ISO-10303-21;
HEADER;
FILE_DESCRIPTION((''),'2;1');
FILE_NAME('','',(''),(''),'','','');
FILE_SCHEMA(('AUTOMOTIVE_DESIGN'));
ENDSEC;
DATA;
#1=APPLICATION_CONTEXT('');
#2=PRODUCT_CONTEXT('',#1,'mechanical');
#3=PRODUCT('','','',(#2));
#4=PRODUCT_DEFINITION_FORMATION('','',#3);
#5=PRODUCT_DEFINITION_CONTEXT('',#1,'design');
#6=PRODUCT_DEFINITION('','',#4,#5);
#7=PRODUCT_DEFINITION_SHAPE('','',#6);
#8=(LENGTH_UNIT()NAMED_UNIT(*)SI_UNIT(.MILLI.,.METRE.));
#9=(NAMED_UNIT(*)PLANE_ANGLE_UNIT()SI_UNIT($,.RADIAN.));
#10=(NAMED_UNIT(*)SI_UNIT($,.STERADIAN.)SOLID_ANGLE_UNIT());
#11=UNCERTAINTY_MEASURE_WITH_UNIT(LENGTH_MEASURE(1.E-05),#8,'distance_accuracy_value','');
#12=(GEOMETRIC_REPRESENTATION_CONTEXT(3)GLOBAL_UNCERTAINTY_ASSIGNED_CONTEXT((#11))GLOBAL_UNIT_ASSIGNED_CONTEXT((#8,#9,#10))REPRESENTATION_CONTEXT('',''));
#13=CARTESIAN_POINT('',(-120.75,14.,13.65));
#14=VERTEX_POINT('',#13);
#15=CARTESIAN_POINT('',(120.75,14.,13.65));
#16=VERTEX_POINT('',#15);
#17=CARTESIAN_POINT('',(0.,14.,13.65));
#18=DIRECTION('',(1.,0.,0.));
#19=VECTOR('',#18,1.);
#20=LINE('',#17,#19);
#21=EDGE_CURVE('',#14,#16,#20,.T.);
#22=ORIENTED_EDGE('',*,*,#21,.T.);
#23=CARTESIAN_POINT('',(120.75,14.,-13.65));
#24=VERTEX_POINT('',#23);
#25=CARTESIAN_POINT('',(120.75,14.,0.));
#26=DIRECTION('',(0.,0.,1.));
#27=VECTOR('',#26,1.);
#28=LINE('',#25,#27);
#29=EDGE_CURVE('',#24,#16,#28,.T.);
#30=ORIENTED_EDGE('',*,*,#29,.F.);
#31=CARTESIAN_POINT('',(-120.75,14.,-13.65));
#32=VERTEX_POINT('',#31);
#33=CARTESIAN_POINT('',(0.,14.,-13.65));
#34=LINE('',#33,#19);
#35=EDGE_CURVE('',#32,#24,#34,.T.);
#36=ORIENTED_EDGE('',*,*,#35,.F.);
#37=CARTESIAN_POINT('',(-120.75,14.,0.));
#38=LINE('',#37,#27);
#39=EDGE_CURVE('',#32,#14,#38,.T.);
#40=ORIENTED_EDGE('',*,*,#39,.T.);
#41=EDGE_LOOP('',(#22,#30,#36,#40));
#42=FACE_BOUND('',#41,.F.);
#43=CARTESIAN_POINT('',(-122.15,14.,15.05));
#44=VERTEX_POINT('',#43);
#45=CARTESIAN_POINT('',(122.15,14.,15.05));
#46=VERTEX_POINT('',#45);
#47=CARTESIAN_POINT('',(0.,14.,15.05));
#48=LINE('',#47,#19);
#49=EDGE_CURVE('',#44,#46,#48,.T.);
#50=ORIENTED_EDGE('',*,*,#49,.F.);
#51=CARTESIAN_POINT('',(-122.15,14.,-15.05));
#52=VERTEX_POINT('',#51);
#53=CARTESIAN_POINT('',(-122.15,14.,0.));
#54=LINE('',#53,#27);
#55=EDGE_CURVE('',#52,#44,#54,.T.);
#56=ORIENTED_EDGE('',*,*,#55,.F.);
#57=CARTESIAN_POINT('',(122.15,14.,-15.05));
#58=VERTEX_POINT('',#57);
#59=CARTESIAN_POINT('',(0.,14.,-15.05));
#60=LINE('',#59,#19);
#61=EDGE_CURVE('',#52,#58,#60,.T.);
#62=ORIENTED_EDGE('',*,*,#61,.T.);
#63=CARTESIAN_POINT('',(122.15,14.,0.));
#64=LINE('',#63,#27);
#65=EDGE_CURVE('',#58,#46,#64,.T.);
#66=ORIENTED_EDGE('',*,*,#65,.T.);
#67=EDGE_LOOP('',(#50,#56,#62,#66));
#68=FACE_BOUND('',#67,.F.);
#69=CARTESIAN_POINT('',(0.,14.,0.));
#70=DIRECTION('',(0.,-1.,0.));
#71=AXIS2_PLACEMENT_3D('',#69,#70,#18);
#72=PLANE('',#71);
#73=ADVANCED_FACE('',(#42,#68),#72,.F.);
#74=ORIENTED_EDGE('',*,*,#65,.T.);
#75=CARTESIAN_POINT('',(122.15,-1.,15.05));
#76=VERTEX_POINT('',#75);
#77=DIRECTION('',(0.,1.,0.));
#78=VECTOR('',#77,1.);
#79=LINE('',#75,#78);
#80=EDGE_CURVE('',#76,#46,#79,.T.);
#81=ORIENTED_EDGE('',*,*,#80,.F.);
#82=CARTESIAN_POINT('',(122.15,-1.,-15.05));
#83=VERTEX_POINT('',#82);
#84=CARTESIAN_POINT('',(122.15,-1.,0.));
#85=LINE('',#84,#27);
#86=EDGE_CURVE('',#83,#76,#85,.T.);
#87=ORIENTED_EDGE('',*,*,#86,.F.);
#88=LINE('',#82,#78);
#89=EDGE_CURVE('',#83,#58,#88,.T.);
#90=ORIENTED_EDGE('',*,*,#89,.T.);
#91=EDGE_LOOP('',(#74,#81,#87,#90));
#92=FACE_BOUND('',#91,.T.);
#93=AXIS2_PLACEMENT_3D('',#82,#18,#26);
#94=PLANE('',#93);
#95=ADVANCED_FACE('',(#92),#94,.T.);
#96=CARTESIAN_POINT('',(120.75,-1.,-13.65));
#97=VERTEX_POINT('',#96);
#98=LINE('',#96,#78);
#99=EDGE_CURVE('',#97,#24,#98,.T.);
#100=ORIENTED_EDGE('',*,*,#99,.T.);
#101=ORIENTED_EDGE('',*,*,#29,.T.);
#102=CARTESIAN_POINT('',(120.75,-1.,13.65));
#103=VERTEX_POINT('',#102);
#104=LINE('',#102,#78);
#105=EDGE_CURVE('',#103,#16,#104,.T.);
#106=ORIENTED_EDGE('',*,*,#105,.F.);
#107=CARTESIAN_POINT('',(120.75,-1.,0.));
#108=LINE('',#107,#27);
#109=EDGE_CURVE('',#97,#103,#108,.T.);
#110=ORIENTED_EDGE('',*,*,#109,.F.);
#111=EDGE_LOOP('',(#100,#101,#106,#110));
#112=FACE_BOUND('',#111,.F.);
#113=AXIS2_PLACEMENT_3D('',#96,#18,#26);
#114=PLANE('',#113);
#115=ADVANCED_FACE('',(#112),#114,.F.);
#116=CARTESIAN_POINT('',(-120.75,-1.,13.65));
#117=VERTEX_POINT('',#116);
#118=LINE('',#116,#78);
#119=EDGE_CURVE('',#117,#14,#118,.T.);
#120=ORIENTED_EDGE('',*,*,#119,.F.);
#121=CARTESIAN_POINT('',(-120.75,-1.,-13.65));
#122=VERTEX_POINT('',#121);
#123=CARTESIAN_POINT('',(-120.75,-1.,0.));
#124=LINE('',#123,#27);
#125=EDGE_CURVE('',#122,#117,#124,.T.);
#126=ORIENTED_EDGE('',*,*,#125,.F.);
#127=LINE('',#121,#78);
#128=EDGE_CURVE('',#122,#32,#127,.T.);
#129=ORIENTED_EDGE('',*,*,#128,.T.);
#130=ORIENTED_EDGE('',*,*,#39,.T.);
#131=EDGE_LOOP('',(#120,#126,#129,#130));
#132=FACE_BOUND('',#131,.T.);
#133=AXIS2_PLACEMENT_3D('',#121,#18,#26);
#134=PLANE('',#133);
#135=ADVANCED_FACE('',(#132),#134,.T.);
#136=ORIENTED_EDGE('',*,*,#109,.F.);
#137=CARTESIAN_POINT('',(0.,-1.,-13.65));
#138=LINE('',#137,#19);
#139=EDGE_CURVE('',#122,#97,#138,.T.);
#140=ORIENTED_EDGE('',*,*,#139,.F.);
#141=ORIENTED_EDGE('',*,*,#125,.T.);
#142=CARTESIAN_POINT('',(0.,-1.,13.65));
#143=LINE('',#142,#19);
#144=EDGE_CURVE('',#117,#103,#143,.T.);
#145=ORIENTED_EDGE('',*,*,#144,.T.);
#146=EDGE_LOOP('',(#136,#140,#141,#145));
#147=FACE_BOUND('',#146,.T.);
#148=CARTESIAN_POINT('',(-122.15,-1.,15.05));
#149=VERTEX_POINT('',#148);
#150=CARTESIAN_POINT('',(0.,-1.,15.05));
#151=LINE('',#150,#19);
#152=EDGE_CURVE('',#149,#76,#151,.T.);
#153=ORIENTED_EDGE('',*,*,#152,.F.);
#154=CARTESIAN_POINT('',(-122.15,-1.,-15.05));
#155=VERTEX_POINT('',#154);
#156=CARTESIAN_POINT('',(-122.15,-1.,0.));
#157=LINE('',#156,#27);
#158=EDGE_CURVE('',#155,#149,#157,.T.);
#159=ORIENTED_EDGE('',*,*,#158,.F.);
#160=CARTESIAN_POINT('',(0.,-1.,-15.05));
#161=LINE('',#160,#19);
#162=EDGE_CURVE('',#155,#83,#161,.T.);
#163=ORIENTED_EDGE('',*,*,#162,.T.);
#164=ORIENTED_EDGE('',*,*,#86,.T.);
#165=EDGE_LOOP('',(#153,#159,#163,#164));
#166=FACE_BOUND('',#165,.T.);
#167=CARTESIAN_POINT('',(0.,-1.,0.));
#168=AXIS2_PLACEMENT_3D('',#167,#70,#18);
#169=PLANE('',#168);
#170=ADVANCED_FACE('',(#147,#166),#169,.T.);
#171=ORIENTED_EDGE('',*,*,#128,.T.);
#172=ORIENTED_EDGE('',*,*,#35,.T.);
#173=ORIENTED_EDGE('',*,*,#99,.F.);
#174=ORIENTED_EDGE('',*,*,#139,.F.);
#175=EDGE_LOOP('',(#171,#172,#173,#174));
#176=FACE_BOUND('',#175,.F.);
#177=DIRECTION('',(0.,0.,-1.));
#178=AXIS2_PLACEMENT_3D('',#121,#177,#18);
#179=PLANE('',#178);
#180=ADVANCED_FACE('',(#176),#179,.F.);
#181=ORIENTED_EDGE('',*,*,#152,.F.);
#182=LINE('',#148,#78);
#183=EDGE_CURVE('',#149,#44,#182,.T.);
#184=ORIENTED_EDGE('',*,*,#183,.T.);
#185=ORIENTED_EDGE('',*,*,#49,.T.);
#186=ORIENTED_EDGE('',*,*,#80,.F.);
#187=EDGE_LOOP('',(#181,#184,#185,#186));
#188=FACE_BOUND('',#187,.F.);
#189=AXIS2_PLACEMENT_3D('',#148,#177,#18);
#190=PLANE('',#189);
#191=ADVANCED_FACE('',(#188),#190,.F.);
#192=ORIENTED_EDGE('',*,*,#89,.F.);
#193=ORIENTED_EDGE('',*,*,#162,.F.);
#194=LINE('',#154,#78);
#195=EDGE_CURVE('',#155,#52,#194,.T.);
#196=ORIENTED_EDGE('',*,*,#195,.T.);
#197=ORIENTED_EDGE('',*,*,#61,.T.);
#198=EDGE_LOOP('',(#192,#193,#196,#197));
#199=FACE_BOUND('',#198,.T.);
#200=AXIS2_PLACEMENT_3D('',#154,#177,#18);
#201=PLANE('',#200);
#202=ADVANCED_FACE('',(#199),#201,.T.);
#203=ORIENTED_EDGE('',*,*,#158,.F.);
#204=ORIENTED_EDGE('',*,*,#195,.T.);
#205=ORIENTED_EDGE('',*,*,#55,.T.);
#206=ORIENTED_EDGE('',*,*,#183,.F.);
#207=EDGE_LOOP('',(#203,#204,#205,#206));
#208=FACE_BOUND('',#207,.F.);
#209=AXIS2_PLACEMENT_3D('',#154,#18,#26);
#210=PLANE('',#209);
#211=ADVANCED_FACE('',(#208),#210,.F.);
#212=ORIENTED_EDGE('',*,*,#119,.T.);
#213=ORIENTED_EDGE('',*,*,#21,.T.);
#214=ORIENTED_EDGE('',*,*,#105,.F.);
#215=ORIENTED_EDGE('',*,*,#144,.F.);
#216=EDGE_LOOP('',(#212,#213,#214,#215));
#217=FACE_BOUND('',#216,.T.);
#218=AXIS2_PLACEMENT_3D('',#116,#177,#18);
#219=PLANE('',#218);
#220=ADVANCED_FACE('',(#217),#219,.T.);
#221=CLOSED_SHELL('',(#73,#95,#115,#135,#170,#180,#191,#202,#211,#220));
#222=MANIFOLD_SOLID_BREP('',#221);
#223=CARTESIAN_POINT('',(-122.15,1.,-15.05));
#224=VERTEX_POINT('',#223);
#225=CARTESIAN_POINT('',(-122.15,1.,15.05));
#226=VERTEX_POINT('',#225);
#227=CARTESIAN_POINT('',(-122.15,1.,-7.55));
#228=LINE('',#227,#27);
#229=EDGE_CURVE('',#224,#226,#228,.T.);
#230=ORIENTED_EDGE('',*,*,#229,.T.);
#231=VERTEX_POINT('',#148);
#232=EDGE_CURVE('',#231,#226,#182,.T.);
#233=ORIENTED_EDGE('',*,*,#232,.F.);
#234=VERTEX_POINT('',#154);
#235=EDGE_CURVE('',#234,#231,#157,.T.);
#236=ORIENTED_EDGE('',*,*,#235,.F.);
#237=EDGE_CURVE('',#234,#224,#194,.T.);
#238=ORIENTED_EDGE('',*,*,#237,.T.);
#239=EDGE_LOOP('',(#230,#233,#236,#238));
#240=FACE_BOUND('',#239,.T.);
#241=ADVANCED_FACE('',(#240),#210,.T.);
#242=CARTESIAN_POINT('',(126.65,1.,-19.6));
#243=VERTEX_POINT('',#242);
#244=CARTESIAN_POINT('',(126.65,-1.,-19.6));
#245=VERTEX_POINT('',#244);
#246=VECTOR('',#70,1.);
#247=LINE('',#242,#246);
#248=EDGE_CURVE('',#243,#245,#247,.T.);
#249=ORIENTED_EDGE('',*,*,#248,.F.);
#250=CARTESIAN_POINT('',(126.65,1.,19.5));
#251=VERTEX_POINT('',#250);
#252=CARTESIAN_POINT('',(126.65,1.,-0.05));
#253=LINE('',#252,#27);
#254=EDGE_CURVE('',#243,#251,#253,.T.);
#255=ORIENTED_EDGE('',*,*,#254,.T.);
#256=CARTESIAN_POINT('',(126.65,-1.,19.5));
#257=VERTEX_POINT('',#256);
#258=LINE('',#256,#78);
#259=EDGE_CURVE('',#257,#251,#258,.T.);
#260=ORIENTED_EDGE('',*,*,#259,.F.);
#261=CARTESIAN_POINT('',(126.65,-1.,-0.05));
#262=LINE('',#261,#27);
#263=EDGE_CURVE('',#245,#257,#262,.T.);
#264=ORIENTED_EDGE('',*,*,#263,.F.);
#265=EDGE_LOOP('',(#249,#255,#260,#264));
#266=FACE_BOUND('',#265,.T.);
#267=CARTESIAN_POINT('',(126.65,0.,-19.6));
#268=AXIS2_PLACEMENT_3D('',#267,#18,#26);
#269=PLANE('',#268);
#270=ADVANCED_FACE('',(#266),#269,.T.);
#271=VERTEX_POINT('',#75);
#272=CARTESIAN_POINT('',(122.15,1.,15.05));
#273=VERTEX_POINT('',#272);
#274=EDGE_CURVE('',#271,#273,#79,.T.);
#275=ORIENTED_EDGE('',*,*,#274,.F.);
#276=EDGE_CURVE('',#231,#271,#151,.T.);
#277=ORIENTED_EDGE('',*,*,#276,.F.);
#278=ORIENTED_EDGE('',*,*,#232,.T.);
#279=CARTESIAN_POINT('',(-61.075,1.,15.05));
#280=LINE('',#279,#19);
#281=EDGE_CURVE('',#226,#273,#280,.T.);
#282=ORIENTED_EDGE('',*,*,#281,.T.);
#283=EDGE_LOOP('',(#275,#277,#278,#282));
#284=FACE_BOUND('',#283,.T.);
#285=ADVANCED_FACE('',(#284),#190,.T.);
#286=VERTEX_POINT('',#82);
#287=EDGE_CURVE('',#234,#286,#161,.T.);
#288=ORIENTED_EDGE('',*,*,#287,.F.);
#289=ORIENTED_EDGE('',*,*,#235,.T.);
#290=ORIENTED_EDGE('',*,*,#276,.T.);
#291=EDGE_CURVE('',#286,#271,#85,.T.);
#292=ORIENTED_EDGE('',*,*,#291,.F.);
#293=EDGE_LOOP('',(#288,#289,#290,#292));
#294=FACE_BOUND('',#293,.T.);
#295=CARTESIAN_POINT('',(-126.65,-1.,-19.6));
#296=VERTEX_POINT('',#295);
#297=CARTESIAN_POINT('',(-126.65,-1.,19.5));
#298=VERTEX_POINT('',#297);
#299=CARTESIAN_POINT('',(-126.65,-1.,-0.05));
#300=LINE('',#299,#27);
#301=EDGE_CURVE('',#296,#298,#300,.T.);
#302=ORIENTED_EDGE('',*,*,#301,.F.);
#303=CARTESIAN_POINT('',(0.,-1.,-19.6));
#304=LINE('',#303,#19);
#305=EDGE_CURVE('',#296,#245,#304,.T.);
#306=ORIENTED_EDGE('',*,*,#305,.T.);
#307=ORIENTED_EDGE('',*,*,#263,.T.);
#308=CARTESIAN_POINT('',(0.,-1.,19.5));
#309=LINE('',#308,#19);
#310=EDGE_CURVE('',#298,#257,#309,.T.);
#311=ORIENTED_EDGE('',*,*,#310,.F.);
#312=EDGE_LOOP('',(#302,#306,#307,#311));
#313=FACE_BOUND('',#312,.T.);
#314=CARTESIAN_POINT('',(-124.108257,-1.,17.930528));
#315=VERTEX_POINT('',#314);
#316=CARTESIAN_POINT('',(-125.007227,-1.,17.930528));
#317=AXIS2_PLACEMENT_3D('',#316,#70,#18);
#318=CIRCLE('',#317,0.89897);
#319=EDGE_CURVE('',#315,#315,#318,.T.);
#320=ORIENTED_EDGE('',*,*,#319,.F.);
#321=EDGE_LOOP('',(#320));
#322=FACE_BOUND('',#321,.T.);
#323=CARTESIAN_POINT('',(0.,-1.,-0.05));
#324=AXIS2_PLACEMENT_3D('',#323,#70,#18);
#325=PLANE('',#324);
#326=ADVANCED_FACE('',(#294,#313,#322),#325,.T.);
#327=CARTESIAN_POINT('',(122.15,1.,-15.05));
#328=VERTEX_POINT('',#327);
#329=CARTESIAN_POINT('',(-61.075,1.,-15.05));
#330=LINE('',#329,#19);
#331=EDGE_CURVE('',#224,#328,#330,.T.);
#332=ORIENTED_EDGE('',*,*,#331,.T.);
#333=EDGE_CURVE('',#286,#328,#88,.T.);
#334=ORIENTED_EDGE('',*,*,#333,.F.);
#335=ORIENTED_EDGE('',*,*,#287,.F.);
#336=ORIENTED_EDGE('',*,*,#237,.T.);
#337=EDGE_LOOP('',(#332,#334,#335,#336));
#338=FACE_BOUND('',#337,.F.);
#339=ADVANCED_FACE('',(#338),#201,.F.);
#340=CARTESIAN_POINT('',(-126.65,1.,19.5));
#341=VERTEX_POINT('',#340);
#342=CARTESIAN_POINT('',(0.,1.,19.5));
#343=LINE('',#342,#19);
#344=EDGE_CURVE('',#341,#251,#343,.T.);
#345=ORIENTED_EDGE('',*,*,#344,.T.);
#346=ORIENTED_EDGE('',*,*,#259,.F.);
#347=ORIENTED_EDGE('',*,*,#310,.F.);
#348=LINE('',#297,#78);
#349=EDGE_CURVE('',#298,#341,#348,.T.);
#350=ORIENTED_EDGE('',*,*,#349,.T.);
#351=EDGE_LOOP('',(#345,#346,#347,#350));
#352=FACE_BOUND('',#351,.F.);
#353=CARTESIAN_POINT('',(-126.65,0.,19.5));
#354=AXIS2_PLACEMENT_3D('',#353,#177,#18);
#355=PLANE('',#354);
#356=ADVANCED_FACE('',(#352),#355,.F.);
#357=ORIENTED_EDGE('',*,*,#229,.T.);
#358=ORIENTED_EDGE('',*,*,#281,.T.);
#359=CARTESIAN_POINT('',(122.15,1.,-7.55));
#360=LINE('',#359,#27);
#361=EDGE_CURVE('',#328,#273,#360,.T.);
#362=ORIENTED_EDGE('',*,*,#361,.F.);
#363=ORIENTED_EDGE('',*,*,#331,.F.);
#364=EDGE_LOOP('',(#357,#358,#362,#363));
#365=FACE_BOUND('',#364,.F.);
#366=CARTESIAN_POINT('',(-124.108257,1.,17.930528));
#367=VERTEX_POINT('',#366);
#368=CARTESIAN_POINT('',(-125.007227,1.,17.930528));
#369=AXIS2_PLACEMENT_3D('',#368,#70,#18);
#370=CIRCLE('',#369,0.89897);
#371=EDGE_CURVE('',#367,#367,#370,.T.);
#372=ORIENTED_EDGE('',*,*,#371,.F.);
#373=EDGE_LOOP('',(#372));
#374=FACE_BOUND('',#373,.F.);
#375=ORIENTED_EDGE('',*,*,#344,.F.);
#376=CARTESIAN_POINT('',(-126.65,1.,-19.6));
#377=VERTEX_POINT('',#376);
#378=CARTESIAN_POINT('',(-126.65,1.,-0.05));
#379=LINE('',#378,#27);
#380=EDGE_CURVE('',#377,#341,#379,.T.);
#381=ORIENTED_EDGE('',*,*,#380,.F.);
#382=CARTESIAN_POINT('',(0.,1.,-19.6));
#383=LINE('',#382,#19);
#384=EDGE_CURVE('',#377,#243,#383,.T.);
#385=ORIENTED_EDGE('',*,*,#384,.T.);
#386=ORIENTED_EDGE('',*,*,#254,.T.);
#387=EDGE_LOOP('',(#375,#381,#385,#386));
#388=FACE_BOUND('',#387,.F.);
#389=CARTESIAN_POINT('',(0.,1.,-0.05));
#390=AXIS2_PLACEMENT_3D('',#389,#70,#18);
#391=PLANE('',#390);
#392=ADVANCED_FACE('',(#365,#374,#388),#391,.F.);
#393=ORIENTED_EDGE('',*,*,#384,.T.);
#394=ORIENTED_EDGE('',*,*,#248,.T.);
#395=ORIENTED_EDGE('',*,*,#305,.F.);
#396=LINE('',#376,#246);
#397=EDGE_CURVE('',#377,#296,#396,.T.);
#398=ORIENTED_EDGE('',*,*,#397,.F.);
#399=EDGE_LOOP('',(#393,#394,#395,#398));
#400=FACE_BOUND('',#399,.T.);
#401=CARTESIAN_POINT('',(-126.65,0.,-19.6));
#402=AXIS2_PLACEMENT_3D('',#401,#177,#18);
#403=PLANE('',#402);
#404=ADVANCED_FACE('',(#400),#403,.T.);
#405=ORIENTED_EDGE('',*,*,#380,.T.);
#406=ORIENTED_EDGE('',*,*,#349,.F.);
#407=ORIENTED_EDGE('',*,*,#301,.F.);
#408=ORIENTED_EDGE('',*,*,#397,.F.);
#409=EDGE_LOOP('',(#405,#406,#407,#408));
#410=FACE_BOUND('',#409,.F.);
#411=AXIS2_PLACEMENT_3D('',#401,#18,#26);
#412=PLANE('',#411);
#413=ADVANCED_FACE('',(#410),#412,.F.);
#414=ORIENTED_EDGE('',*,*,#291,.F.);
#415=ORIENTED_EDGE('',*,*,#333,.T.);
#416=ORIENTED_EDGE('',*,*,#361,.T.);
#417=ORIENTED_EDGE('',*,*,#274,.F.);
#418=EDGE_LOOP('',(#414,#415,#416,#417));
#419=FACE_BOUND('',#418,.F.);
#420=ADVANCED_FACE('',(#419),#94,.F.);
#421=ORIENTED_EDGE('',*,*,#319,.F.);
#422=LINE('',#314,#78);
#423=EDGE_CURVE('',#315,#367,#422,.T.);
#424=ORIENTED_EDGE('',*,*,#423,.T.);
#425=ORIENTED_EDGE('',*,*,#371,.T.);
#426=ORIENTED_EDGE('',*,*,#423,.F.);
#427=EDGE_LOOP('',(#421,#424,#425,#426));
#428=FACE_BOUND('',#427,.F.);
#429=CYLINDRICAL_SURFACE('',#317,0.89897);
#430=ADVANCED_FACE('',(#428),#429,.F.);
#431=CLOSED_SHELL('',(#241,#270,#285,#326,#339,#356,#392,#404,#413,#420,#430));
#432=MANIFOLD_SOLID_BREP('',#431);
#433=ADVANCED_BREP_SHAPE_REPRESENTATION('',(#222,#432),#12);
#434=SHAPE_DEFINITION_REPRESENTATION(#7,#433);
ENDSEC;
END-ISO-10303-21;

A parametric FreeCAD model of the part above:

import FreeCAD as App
import Part
import Sketcher
from FreeCAD import Vector
Q = App.Units.Quantity


def add_polygon(sketch, points):
    """Adds a closed chain of lines whose ends are joined by coincident constraints."""
    first, n = sketch.GeometryCount, len(points)
    for a, b in zip(points, points[1:] + points[:1]):
        sketch.addGeometry(Part.LineSegment(App.Vector(*a, 0), App.Vector(*b, 0)), False)
    for i in range(n):
        sketch.addConstraint(Sketcher.Constraint("Coincident", first + i, 2, first + (i + 1) % n, 1))

doc = App.newDocument("Part")
body = doc.addObject("PartDesign::Body", "Body")

# Sketch on XZ plane
sketch1 = body.newObject("Sketcher::SketchObject", "Sketch")
sketch1.AttachmentSupport = (doc.getObject("XZ_Plane"), [""])
sketch1.MapMode = "FlatFace"
add_polygon(sketch1, [(-127, 20), (-127, -20), (127, -20), (127, 20)])  # lines 0-3
sketch1.addConstraint([
    Sketcher.Constraint("Vertical", 0),
    Sketcher.Constraint("Horizontal", 1),
    Sketcher.Constraint("Vertical", 2),
    Sketcher.Constraint("Horizontal", 3),
    Sketcher.Constraint("DistanceX", 1, 1, 1, 2, Q("253.3 mm")),
    Sketcher.Constraint("DistanceY", 0, 2, 0, 1, Q("39.1 mm")),
    Sketcher.Constraint("DistanceY", 0, 2, -1, 1, Q("19.6 mm")),
    Sketcher.Constraint("DistanceX", 0, 2, -1, 1, Q("126.65 mm")),
])
pad1 = body.newObject("PartDesign::Pad", "Pad")
pad1.Profile = sketch1
pad1.Length = 2
pad1.Midplane = True

# Sketch on XZ plane
sketch2 = body.newObject("Sketcher::SketchObject", "Sketch001")
sketch2.AttachmentSupport = (doc.getObject("XZ_Plane"), [""])
sketch2.MapMode = "FlatFace"
sketch2.AttachmentOffset = App.Placement(Vector(0, 0, 1), App.Rotation())
add_polygon(sketch2, [(-122, 15), (-122, -15), (122, -15), (122, 15)])  # lines 0-3
sketch2.addConstraint([
    Sketcher.Constraint("Vertical", 0),
    Sketcher.Constraint("Horizontal", 1),
    Sketcher.Constraint("Vertical", 2),
    Sketcher.Constraint("Horizontal", 3),
    Sketcher.Constraint("Symmetric", 0, 2, 2, 2, -1, 1),
    Sketcher.Constraint("DistanceX", 1, 1, 1, 2, Q("244.3 mm")),
    Sketcher.Constraint("DistanceY", 0, 2, 0, 1, Q("30.1 mm")),
])
pocket1 = body.newObject("PartDesign::Pocket", "Pocket")
pocket1.Profile = sketch2
pocket1.Type = "ThroughAll"

# Sketch on XZ plane
sketch3 = body.newObject("Sketcher::SketchObject", "Sketch002")
sketch3.AttachmentSupport = (doc.getObject("XZ_Plane"), [""])
sketch3.MapMode = "FlatFace"
sketch3.AttachmentOffset = App.Placement(Vector(0, 0, 1), App.Rotation())
sketch3.addGeometry(Part.Circle(Vector(-125, 17.9, 0), Vector(0, 0, 1), 0.9), False)
sketch3.addConstraint([
    Sketcher.Constraint("Diameter", 0, Q("1.79794 mm")),
    Sketcher.Constraint("DistanceX", 0, 3, -1, 1, Q("125.007227 mm")),
    Sketcher.Constraint("DistanceY", -1, 1, 0, 3, Q("17.930528 mm")),
])
pocket2 = body.newObject("PartDesign::Pocket", "Pocket001")
pocket2.Profile = sketch3
pocket2.Length = 50
body2 = doc.addObject("PartDesign::Body", "Body001")

# Sketch on XZ plane
sketch4 = body2.newObject("Sketcher::SketchObject", "Sketch003")
sketch4.AttachmentSupport = (doc.getObject("XZ_Plane001"), [""])
sketch4.MapMode = "FlatFace"
sketch4.AttachmentOffset = App.Placement(Vector(0, 0, 1), App.Rotation())
add_polygon(sketch4, [(-122, 15), (-122, -15), (122, -15), (122, 15)])  # lines 0-3
add_polygon(sketch4, [(121, -14), (-121, -14), (-121, 14), (121, 14)])  # lines 4-7
sketch4.addConstraint([
    Sketcher.Constraint("Vertical", 0),
    Sketcher.Constraint("Horizontal", 1),
    Sketcher.Constraint("Vertical", 2),
    Sketcher.Constraint("Horizontal", 3),
    Sketcher.Constraint("Horizontal", 4),
    Sketcher.Constraint("Vertical", 5),
    Sketcher.Constraint("Horizontal", 6),
    Sketcher.Constraint("Vertical", 7),
    Sketcher.Constraint("Symmetric", 0, 2, 2, 2, -1, 1),
    Sketcher.Constraint("Symmetric", 4, 2, 6, 2, -1, 1),
    Sketcher.Constraint("DistanceX", 1, 1, 1, 2, Q("244.3 mm")),
    Sketcher.Constraint("DistanceX", 4, 2, 4, 1, Q("241.5 mm")),
    Sketcher.Constraint("DistanceY", 0, 2, 0, 1, Q("30.1 mm")),
    Sketcher.Constraint("DistanceY", 5, 1, 5, 2, Q("27.3 mm")),
])
pad2 = body2.newObject("PartDesign::Pad", "Pad001")
pad2.Profile = sketch4
pad2.Length = 15
pad2.Reversed = True

doc.recompute()
